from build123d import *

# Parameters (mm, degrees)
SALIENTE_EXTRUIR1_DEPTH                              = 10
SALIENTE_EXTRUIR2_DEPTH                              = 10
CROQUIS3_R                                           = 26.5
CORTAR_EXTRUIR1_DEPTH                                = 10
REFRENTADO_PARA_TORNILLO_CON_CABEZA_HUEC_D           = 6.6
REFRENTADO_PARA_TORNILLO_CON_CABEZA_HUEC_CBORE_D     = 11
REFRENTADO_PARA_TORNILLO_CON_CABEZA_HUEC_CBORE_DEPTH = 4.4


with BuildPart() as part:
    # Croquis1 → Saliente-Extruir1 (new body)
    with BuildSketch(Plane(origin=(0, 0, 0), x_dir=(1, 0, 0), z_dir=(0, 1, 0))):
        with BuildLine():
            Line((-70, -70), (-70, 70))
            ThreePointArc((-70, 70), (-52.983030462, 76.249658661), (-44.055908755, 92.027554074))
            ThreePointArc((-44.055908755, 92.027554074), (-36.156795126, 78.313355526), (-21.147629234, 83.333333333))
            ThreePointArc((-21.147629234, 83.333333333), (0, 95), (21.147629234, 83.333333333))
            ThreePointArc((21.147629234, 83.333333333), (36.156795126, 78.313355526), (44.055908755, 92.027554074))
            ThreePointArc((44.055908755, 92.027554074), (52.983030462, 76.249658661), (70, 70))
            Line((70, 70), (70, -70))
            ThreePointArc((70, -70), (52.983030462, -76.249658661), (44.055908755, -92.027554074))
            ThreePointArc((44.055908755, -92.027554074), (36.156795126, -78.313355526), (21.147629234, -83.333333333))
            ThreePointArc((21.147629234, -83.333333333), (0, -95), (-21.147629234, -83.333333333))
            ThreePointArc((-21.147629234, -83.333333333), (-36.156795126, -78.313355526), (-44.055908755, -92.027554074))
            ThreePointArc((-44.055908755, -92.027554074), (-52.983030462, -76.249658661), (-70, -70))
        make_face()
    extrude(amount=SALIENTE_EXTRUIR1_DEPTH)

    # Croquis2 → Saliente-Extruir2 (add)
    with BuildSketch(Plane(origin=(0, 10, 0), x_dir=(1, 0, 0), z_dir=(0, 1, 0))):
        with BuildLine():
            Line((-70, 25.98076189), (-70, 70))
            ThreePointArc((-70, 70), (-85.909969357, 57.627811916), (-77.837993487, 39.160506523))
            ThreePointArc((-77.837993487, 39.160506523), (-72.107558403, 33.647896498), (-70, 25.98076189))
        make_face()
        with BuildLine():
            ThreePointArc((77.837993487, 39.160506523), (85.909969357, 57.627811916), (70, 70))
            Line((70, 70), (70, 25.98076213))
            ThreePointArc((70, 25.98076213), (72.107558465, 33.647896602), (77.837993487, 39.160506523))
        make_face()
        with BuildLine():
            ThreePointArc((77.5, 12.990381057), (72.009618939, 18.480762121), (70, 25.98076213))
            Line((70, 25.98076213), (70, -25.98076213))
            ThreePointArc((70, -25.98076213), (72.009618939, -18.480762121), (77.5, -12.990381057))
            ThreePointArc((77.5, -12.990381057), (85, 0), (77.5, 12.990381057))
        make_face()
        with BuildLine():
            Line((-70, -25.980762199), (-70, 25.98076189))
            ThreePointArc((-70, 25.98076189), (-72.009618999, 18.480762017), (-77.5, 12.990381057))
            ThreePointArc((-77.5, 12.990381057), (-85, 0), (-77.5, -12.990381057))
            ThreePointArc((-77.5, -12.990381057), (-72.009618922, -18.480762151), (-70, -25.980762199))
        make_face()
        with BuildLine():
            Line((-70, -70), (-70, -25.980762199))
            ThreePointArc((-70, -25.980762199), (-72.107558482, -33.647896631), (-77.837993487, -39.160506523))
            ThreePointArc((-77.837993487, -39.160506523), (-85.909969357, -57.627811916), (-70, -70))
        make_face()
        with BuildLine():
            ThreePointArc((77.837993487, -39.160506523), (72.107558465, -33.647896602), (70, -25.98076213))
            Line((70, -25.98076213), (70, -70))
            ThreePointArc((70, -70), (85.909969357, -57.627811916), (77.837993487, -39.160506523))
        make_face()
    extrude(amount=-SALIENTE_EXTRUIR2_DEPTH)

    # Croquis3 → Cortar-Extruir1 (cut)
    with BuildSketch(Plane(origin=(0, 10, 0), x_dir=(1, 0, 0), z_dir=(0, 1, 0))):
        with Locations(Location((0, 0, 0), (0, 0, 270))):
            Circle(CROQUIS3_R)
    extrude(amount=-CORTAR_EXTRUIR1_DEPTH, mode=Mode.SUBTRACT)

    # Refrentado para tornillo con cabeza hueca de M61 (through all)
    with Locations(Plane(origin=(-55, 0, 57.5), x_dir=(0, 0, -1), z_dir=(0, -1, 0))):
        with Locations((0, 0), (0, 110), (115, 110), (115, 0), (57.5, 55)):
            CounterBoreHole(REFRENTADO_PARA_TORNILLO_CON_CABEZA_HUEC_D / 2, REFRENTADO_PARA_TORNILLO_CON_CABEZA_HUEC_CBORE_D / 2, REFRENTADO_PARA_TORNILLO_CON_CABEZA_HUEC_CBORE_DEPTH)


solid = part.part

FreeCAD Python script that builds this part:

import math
import FreeCAD as App
import Part
import Sketcher
from FreeCAD import Vector

doc = App.newDocument("Part")
body = doc.addObject("PartDesign::Body", "Body")

sketch1 = body.newObject("Sketcher::SketchObject", "Sketch")
sketch1.AttachmentSupport = (doc.getObject("XZ_Plane"), [""])
sketch1.MapMode = "FlatFace"
sketch1.addGeometry(Part.LineSegment(Vector(-70, -70, 0), Vector(-70, 70, 0)), False)
sketch1.addGeometry(Part.ArcOfCircle(Part.Circle(Vector(-70, 96, 0), Vector(0, 0, 1), 26), math.radians(-90), math.radians(-9)), False)
sketch1.addGeometry(Part.ArcOfCircle(Part.Circle(Vector(-32, 90, 0), Vector(0, 0, 1), 12), math.radians(171), math.radians(328)), False)
sketch1.addGeometry(Part.ArcOfCircle(Part.Circle(Vector(0, 70, 0), Vector(0, 0, 1), 25), math.radians(32), math.radians(148)), False)
sketch1.addGeometry(Part.ArcOfCircle(Part.Circle(Vector(32, 90, 0), Vector(0, 0, 1), 12), math.radians(-148), math.radians(9)), False)
sketch1.addGeometry(Part.ArcOfCircle(Part.Circle(Vector(70, 96, 0), Vector(0, 0, 1), 26), math.radians(-171), math.radians(-90)), False)
sketch1.addGeometry(Part.LineSegment(Vector(70, 70, 0), Vector(70, -70, 0)), False)
sketch1.addGeometry(Part.ArcOfCircle(Part.Circle(Vector(70, -96, 0), Vector(0, 0, 1), 26), math.radians(90), math.radians(171)), False)
sketch1.addGeometry(Part.ArcOfCircle(Part.Circle(Vector(32, -90, 0), Vector(0, 0, 1), 12), math.radians(-9), math.radians(148)), False)
sketch1.addGeometry(Part.ArcOfCircle(Part.Circle(Vector(0, -70, 0), Vector(0, 0, 1), 25), math.radians(-148), math.radians(-32)), False)
sketch1.addGeometry(Part.ArcOfCircle(Part.Circle(Vector(-32, -90, 0), Vector(0, 0, 1), 12), math.radians(32), math.radians(189)), False)
sketch1.addGeometry(Part.ArcOfCircle(Part.Circle(Vector(-70, -96, 0), Vector(0, 0, 1), 26), math.radians(9), math.radians(90)), False)
sketch1.addConstraint(Sketcher.Constraint("Coincident", 0, 2, 1, 1))
sketch1.addConstraint(Sketcher.Constraint("Tangent", 1, 2, 2, 1))
sketch1.addConstraint(Sketcher.Constraint("Tangent", 2, 2, 3, 2))
sketch1.addConstraint(Sketcher.Constraint("Tangent", 3, 1, 4, 1))
sketch1.addConstraint(Sketcher.Constraint("Tangent", 4, 2, 5, 1))
sketch1.addConstraint(Sketcher.Constraint("Coincident", 5, 2, 6, 1))
sketch1.addConstraint(Sketcher.Constraint("Coincident", 6, 2, 7, 1))
sketch1.addConstraint(Sketcher.Constraint("Tangent", 7, 2, 8, 1))
sketch1.addConstraint(Sketcher.Constraint("Tangent", 8, 2, 9, 2))
sketch1.addConstraint(Sketcher.Constraint("Tangent", 9, 1, 10, 1))
sketch1.addConstraint(Sketcher.Constraint("Tangent", 10, 2, 11, 1))
sketch1.addConstraint(Sketcher.Constraint("Coincident", 11, 2, 0, 1))
sketch1.addConstraint(Sketcher.Constraint("Vertical", 0))
sketch1.addConstraint(Sketcher.Constraint("Vertical", 6))
sketch1.addConstraint(Sketcher.Constraint("Equal", 2, 4))
sketch1.addConstraint(Sketcher.Constraint("Equal", 1, 5))
sketch1.addConstraint(Sketcher.Constraint("Equal", 5, 7))
sketch1.addConstraint(Sketcher.Constraint("Equal", 4, 8))
sketch1.addConstraint(Sketcher.Constraint("Equal", 3, 9))
sketch1.addConstraint(Sketcher.Constraint("Equal", 8, 10))
sketch1.addConstraint(Sketcher.Constraint("Equal", 7, 11))
sketch1.addConstraint(Sketcher.Constraint("Symmetric", 1, 3, 7, 3, -1, 1))
sketch1.addConstraint(Sketcher.Constraint("Symmetric", 3, 3, 9, 3, -1, 1))
sketch1.addConstraint(Sketcher.Constraint("Symmetric", 5, 3, 11, 3, -1, 1))
sketch1.addConstraint(Sketcher.Constraint("Symmetric", 2, 3, 4, 3, -2))
sketch1.addConstraint(Sketcher.Constraint("Symmetric", 0, 2, 5, 2, -2))
sketch1.addConstraint(Sketcher.Constraint("Horizontal", 3, 3, 0, 2))
sketch1.addConstraint(Sketcher.Constraint("Vertical", 11, 3, 0, 2))
sketch1.addConstraint(Sketcher.Constraint("Radius", 3, 25.0))
sketch1.addConstraint(Sketcher.Constraint("Radius", 2, 12.5))
sketch1.addConstraint(Sketcher.Constraint("DistanceY", 0, 1, 0, 2, 140.0))
sketch1.addConstraint(Sketcher.Constraint("DistanceX", 1, 3, -1, 1, 70.0))
sketch1.addConstraint(Sketcher.Constraint("DistanceY", -1, 1, 2, 3, 90.0))
pad1 = body.newObject("PartDesign::Pad", "Pad")
pad1.Profile = sketch1
pad1.Length = 10
pad1.Reversed = True

sketch2 = body.newObject("Sketcher::SketchObject", "Sketch001")
sketch2.AttachmentSupport = (doc.getObject("XZ_Plane"), [""])
sketch2.MapMode = "FlatFace"
sketch2.AttachmentOffset = App.Placement(Vector(0, 0, -10), App.Rotation())
sketch2.addGeometry(Part.LineSegment(Vector(-70, -26, 0), Vector(-70, -70, 0)), False)
sketch2.addGeometry(Part.ArcOfCircle(Part.Circle(Vector(-70, -54, 0), Vector(0, 0, 1), 16), math.radians(119), math.radians(270)), False)
sketch2.addGeometry(Part.ArcOfCircle(Part.Circle(Vector(-85, -26, 0), Vector(0, 0, 1), 15), math.radians(-61), math.radians(0)), False)
sketch2.addGeometry(Part.ArcOfCircle(Part.Circle(Vector(70, -54, 0), Vector(0, 0, 1), 16), math.radians(-90), math.radians(61)), False)
sketch2.addGeometry(Part.LineSegment(Vector(70, -70, 0), Vector(70, -26, 0)), False)
sketch2.addGeometry(Part.ArcOfCircle(Part.Circle(Vector(85, -26, 0), Vector(0, 0, 1), 15), math.radians(-180), math.radians(-119)), False)
sketch2.addGeometry(Part.ArcOfCircle(Part.Circle(Vector(85, -26, 0), Vector(0, 0, 1), 15), math.radians(120), math.radians(180)), False)
sketch2.addGeometry(Part.LineSegment(Vector(70, -26, 0), Vector(70, 26, 0)), False)
sketch2.addGeometry(Part.ArcOfCircle(Part.Circle(Vector(85, 26, 0), Vector(0, 0, 1), 15), math.radians(180), math.radians(240)), False)
sketch2.addGeometry(Part.ArcOfCircle(Part.Circle(Vector(70, 0, 0), Vector(0, 0, 1), 15), math.radians(-60), math.radians(60)), False)
sketch2.addGeometry(Part.LineSegment(Vector(-70, 26, 0), Vector(-70, -26, 0)), False)
sketch2.addGeometry(Part.ArcOfCircle(Part.Circle(Vector(-85, -26, 0), Vector(0, 0, 1), 15), math.radians(0), math.radians(60)), False)
sketch2.addGeometry(Part.ArcOfCircle(Part.Circle(Vector(-70, 0, 0), Vector(0, 0, 1), 15), math.radians(120), math.radians(240)), False)
sketch2.addGeometry(Part.ArcOfCircle(Part.Circle(Vector(-85, 26, 0), Vector(0, 0, 1), 15), math.radians(-60), math.radians(0)), False)
sketch2.addGeometry(Part.LineSegment(Vector(-70, 70, 0), Vector(-70, 26, 0)), False)
sketch2.addGeometry(Part.ArcOfCircle(Part.Circle(Vector(-85, 26, 0), Vector(0, 0, 1), 15), math.radians(0), math.radians(61)), False)
sketch2.addGeometry(Part.ArcOfCircle(Part.Circle(Vector(-70, 54, 0), Vector(0, 0, 1), 16), math.radians(90), math.radians(241)), False)
sketch2.addGeometry(Part.ArcOfCircle(Part.Circle(Vector(85, 26, 0), Vector(0, 0, 1), 15), math.radians(119), math.radians(180)), False)
sketch2.addGeometry(Part.LineSegment(Vector(70, 26, 0), Vector(70, 70, 0)), False)
sketch2.addGeometry(Part.ArcOfCircle(Part.Circle(Vector(70, 54, 0), Vector(0, 0, 1), 16), math.radians(-61), math.radians(90)), False)
sketch2.addConstraint(Sketcher.Constraint("Coincident", 0, 2, 1, 2))
sketch2.addConstraint(Sketcher.Constraint("Tangent", 1, 1, 2, 1))
sketch2.addConstraint(Sketcher.Constraint("Tangent", 2, 2, 0, 1))
sketch2.addConstraint(Sketcher.Constraint("Coincident", 3, 1, 4, 1))
sketch2.addConstraint(Sketcher.Constraint("Tangent", 4, 2, 5, 1))
sketch2.addConstraint(Sketcher.Constraint("Tangent", 5, 2, 3, 2))
sketch2.addConstraint(Sketcher.Constraint("Tangent", 6, 2, 7, 1))
sketch2.addConstraint(Sketcher.Constraint("Tangent", 7, 2, 8, 1))
sketch2.addConstraint(Sketcher.Constraint("Tangent", 8, 2, 9, 2))
sketch2.addConstraint(Sketcher.Constraint("Tangent", 9, 1, 6, 1))
sketch2.addConstraint(Sketcher.Constraint("Tangent", 10, 2, 11, 1))
sketch2.addConstraint(Sketcher.Constraint("Tangent", 11, 2, 12, 2))
sketch2.addConstraint(Sketcher.Constraint("Tangent", 12, 1, 13, 1))
sketch2.addConstraint(Sketcher.Constraint("Tangent", 13, 2, 10, 1))
sketch2.addConstraint(Sketcher.Constraint("Tangent", 14, 2, 15, 1))
sketch2.addConstraint(Sketcher.Constraint("Tangent", 15, 2, 16, 2))
sketch2.addConstraint(Sketcher.Constraint("Coincident", 16, 1, 14, 1))
sketch2.addConstraint(Sketcher.Constraint("Tangent", 17, 2, 18, 1))
sketch2.addConstraint(Sketcher.Constraint("Coincident", 18, 2, 19, 2))
sketch2.addConstraint(Sketcher.Constraint("Tangent", 19, 1, 17, 1))
sketch2.addConstraint(Sketcher.Constraint("Vertical", 0))
sketch2.addConstraint(Sketcher.Constraint("Vertical", 4))
sketch2.addConstraint(Sketcher.Constraint("Vertical", 7))
sketch2.addConstraint(Sketcher.Constraint("Vertical", 10))
sketch2.addConstraint(Sketcher.Constraint("Vertical", 14))
sketch2.addConstraint(Sketcher.Constraint("Vertical", 18))
sketch2.addConstraint(Sketcher.Constraint("Coincident", 6, 3, 5, 3))
sketch2.addConstraint(Sketcher.Constraint("Coincident", 11, 3, 2, 3))
sketch2.addConstraint(Sketcher.Constraint("Coincident", 15, 3, 13, 3))
sketch2.addConstraint(Sketcher.Constraint("Coincident", 17, 3, 8, 3))
sketch2.addConstraint(Sketcher.Constraint("Equal", 1, 3))
sketch2.addConstraint(Sketcher.Constraint("Equal", 2, 5))
sketch2.addConstraint(Sketcher.Constraint("Equal", 5, 6))
sketch2.addConstraint(Sketcher.Constraint("Equal", 6, 8))
sketch2.addConstraint(Sketcher.Constraint("Equal", 8, 9))
sketch2.addConstraint(Sketcher.Constraint("Equal", 9, 11))
sketch2.addConstraint(Sketcher.Constraint("Equal", 11, 12))
sketch2.addConstraint(Sketcher.Constraint("Equal", 12, 13))
sketch2.addConstraint(Sketcher.Constraint("Equal", 13, 15))
sketch2.addConstraint(Sketcher.Constraint("Equal", 3, 16))
sketch2.addConstraint(Sketcher.Constraint("Equal", 15, 17))
sketch2.addConstraint(Sketcher.Constraint("Equal", 16, 19))
sketch2.addConstraint(Sketcher.Constraint("Symmetric", 2, 3, 8, 3, -1, 1))
sketch2.addConstraint(Sketcher.Constraint("Symmetric", 3, 3, 16, 3, -1, 1))
sketch2.addConstraint(Sketcher.Constraint("Symmetric", 1, 3, 3, 3, -2))
sketch2.addConstraint(Sketcher.Constraint("Horizontal", 16, 3, 19, 3))
sketch2.addConstraint(Sketcher.Constraint("Vertical", 3, 3, 9, 3))
sketch2.addConstraint(Sketcher.Constraint("Vertical", 16, 3, 0, 2))
sketch2.addConstraint(Sketcher.Constraint("Radius", 2, 15.0))
sketch2.addConstraint(Sketcher.Constraint("DistanceX", 1, 3, -1, 1, 70.0))
sketch2.addConstraint(Sketcher.Constraint("DistanceY", 0, 2, -1, 1, 70.0))
pad2 = body.newObject("PartDesign::Pad", "Pad001")
pad2.Profile = sketch2
pad2.Length = 10

sketch3 = body.newObject("Sketcher::SketchObject", "Sketch002")
sketch3.AttachmentSupport = (doc.getObject("XZ_Plane"), [""])
sketch3.MapMode = "FlatFace"
sketch3.AttachmentOffset = App.Placement(Vector(0, 0, -10), App.Rotation())
sketch3.addGeometry(Part.Circle(Vector(0, 0, 0), Vector(0, 0, 1), 26), False)
sketch3.addConstraint(Sketcher.Constraint("Coincident", 0, 3, -1, 1))
sketch3.addConstraint(Sketcher.Constraint("Diameter", 0, 53.0))
pocket1 = body.newObject("PartDesign::Pocket", "Pocket")
pocket1.Profile = sketch3
pocket1.Length = 10
pocket1.Reversed = True

sketch4 = body.newObject("Sketcher::SketchObject", "Sketch003")
sketch4.AttachmentSupport = (doc.getObject("XZ_Plane"), [""])
sketch4.MapMode = "FlatFace"
sketch4.addGeometry(Part.Circle(Vector(-55, 57.5, 0), Vector(0, 0, 1), 3.3), False)
sketch4.addGeometry(Part.Circle(Vector(55, 57.5, 0), Vector(0, 0, 1), 3.3), False)
sketch4.addGeometry(Part.Circle(Vector(55, -57.5, 0), Vector(0, 0, 1), 3.3), False)
sketch4.addGeometry(Part.Circle(Vector(-55, -57.5, 0), Vector(0, 0, 1), 3.3), False)
sketch4.addGeometry(Part.Circle(Vector(0, 0, 0), Vector(0, 0, 1), 3.3), False)
sketch4.addConstraint(Sketcher.Constraint("Coincident", 4, 3, -1, 1))
sketch4.addConstraint(Sketcher.Constraint("Equal", 0, 1))
sketch4.addConstraint(Sketcher.Constraint("Equal", 1, 2))
sketch4.addConstraint(Sketcher.Constraint("Equal", 2, 3))
sketch4.addConstraint(Sketcher.Constraint("Equal", 3, 4))
sketch4.addConstraint(Sketcher.Constraint("Symmetric", 0, 3, 2, 3, -1, 1))
sketch4.addConstraint(Sketcher.Constraint("Symmetric", 1, 3, 3, 3, -1, 1))
sketch4.addConstraint(Sketcher.Constraint("Symmetric", 0, 3, 1, 3, -2))
sketch4.addConstraint(Sketcher.Constraint("Diameter", 0, 6.6))
sketch4.addConstraint(Sketcher.Constraint("DistanceX", 0, 3, -1, 1, 55.0))
sketch4.addConstraint(Sketcher.Constraint("DistanceY", 2, 3, 1, 3, 115.0))
doc.recompute()
hole = body.newObject("PartDesign::Hole", "Hole")
hole.Profile = sketch4
hole.ThreadType = "None"
hole.Diameter = 6.6
hole.DepthType = "ThroughAll"
hole.HoleCutType = "Counterbore"
hole.HoleCutDiameter = 11
hole.HoleCutDepth = 4.4

doc.recompute()
